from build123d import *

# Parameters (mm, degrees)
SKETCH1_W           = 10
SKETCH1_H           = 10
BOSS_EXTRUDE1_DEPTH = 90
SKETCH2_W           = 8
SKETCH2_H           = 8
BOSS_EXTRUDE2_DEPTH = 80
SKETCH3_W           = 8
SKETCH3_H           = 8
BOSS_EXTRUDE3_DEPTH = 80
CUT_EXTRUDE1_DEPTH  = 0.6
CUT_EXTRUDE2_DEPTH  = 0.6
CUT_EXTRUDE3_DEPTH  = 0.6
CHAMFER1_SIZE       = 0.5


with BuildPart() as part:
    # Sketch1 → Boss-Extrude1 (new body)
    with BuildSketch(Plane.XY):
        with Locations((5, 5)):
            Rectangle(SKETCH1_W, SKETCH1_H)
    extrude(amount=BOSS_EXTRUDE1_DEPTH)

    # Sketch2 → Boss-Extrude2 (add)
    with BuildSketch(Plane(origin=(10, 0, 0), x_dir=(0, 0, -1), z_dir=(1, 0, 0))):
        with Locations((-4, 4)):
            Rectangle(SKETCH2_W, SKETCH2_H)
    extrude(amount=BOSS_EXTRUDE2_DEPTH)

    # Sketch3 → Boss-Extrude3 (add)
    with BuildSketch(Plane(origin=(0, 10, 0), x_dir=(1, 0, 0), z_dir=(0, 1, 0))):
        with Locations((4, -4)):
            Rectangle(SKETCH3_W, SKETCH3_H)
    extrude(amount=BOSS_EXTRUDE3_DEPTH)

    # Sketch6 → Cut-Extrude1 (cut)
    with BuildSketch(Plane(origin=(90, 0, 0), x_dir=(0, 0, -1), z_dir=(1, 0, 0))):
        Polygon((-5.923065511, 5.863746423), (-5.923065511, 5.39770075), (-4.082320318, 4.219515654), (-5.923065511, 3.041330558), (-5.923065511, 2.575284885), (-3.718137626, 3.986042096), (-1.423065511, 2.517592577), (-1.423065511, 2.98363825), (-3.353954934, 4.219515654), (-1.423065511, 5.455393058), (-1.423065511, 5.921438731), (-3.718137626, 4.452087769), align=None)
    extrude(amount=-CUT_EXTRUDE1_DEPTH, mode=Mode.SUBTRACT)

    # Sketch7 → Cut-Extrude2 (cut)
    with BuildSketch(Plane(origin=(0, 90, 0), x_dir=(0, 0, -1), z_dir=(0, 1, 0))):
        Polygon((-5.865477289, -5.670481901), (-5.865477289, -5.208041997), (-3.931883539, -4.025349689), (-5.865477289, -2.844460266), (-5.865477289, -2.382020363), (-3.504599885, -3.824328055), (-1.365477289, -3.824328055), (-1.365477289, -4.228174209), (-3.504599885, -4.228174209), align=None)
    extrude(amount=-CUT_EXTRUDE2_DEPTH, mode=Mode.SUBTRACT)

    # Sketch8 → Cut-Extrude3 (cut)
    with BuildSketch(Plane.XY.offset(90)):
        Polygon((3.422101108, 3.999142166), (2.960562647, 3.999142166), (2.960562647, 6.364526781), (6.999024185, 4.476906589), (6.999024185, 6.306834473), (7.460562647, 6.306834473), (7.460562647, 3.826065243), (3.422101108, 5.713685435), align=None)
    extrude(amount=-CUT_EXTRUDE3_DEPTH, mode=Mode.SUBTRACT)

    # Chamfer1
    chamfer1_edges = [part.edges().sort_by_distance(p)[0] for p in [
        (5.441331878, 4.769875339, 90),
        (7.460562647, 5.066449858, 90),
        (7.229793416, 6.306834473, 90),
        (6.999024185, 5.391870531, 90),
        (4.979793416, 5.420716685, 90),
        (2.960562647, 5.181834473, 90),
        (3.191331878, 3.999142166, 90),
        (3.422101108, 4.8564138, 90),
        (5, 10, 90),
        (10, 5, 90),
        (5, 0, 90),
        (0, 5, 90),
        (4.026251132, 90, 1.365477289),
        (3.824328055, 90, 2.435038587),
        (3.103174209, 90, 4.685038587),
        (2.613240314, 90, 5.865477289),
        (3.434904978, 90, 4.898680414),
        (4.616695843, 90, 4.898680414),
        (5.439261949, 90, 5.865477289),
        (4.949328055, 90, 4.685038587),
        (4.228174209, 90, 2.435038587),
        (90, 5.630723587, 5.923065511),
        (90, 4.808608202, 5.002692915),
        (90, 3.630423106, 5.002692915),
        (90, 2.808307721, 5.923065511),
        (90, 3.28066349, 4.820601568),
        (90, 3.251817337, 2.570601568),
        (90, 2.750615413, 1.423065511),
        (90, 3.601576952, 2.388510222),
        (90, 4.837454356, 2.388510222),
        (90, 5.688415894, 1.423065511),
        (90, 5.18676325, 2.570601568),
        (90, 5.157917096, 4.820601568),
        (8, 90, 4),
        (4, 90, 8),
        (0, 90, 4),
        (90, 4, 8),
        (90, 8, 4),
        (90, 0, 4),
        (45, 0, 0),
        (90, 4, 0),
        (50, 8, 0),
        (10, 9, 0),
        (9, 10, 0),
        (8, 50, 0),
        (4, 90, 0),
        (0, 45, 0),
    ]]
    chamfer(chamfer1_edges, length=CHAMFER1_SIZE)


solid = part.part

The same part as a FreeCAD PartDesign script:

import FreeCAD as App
import Part
import Sketcher


def edges_at(feature, points):
    """Names of the edges that pass closest to the given points."""
    edges = feature.Shape.Edges
    near = lambda p: min(range(len(edges)), key=lambda i: edges[i].distToShape(Part.Vertex(*p))[0])
    return sorted({f"Edge{near(p) + 1}" for p in points})

doc = App.newDocument("Part")
body = doc.addObject("PartDesign::Body", "Body")

# Sketch on XY plane
sketch1 = body.newObject("Sketcher::SketchObject", "Sketch")
sketch1.AttachmentSupport = (doc.getObject("XY_Plane"), [""])
sketch1.MapMode = "FlatFace"
sketch1.addGeometry([
    Part.LineSegment(App.Vector(0, 10, 0), App.Vector(0, 0, 0)),
    Part.LineSegment(App.Vector(0, 0, 0), App.Vector(10, 0, 0)),
    Part.LineSegment(App.Vector(10, 0, 0), App.Vector(10, 10, 0)),
    Part.LineSegment(App.Vector(10, 10, 0), App.Vector(0, 10, 0)),
], False)
sketch1.addConstraint([
    Sketcher.Constraint("Coincident", 0, 2, 1, 1),
    Sketcher.Constraint("Coincident", 1, 2, 2, 1),
    Sketcher.Constraint("Coincident", 2, 2, 3, 1),
    Sketcher.Constraint("Coincident", 3, 2, 0, 1),
    Sketcher.Constraint("Vertical", 0),
    Sketcher.Constraint("Horizontal", 1),
    Sketcher.Constraint("Vertical", 2),
    Sketcher.Constraint("Horizontal", 3),
    Sketcher.Constraint("Coincident", 0, 2, -1, 1),
    Sketcher.Constraint("Equal", 3, 0),
    Sketcher.Constraint("DistanceX", 1, 1, 1, 2, 10.0),
])
pad1 = body.newObject("PartDesign::Pad", "Pad")
pad1.Profile = sketch1
pad1.Length = 90

# Sketch on YZ plane
sketch2 = body.newObject("Sketcher::SketchObject", "Sketch001")
sketch2.AttachmentSupport = (doc.getObject("YZ_Plane"), [""])
sketch2.MapMode = "FlatFace"
sketch2.AttachmentOffset = App.Placement(App.Vector(0, 0, 10), App.Rotation())
sketch2.addGeometry([
    Part.LineSegment(App.Vector(8, 8, 0), App.Vector(0, 8, 0)),
    Part.LineSegment(App.Vector(0, 8, 0), App.Vector(0, 0, 0)),
    Part.LineSegment(App.Vector(0, 0, 0), App.Vector(8, 0, 0)),
    Part.LineSegment(App.Vector(8, 0, 0), App.Vector(8, 8, 0)),
], False)
sketch2.addConstraint([
    Sketcher.Constraint("Coincident", 0, 2, 1, 1),
    Sketcher.Constraint("Coincident", 1, 2, 2, 1),
    Sketcher.Constraint("Coincident", 2, 2, 3, 1),
    Sketcher.Constraint("Coincident", 3, 2, 0, 1),
    Sketcher.Constraint("Horizontal", 0),
    Sketcher.Constraint("Vertical", 1),
    Sketcher.Constraint("Horizontal", 2),
    Sketcher.Constraint("Vertical", 3),
    Sketcher.Constraint("Coincident", 1, 2, -1, 1),
    Sketcher.Constraint("Equal", 2, 1),
    Sketcher.Constraint("DistanceX", 0, 2, 0, 1, 8.0),
])
pad2 = body.newObject("PartDesign::Pad", "Pad001")
pad2.Profile = sketch2
pad2.Length = 80

# Sketch on XZ plane
sketch3 = body.newObject("Sketcher::SketchObject", "Sketch002")
sketch3.AttachmentSupport = (doc.getObject("XZ_Plane"), [""])
sketch3.MapMode = "FlatFace"
sketch3.AttachmentOffset = App.Placement(App.Vector(0, 0, -10), App.Rotation())
sketch3.addGeometry([
    Part.LineSegment(App.Vector(0, 0, 0), App.Vector(0, 8, 0)),
    Part.LineSegment(App.Vector(0, 8, 0), App.Vector(8, 8, 0)),
    Part.LineSegment(App.Vector(8, 8, 0), App.Vector(8, 0, 0)),
    Part.LineSegment(App.Vector(8, 0, 0), App.Vector(0, 0, 0)),
], False)
sketch3.addConstraint([
    Sketcher.Constraint("Coincident", 0, 2, 1, 1),
    Sketcher.Constraint("Coincident", 1, 2, 2, 1),
    Sketcher.Constraint("Coincident", 2, 2, 3, 1),
    Sketcher.Constraint("Coincident", 3, 2, 0, 1),
    Sketcher.Constraint("Vertical", 0),
    Sketcher.Constraint("Horizontal", 1),
    Sketcher.Constraint("Vertical", 2),
    Sketcher.Constraint("Horizontal", 3),
    Sketcher.Constraint("Coincident", 3, 2, -1, 1),
    Sketcher.Constraint("Equal", 3, 0),
    Sketcher.Constraint("DistanceX", 1, 1, 1, 2, 8.0),
])
pad3 = body.newObject("PartDesign::Pad", "Pad002")
pad3.Profile = sketch3
pad3.Length = 80
pad3.Reversed = True

# Sketch on YZ plane
sketch4 = body.newObject("Sketcher::SketchObject", "Sketch003")
sketch4.AttachmentSupport = (doc.getObject("YZ_Plane"), [""])
sketch4.MapMode = "FlatFace"
sketch4.AttachmentOffset = App.Placement(App.Vector(0, 0, 90), App.Rotation())
sketch4.addGeometry([
    Part.LineSegment(App.Vector(5.86, 5.92, 0), App.Vector(5.4, 5.92, 0)),  # 0
    Part.LineSegment(App.Vector(5.4, 5.92, 0), App.Vector(4.22, 4.08, 0)),  # 1
    Part.LineSegment(App.Vector(4.22, 4.08, 0), App.Vector(3.04, 5.92, 0)),  # 2
    Part.LineSegment(App.Vector(3.04, 5.92, 0), App.Vector(2.58, 5.92, 0)),  # 3
    Part.LineSegment(App.Vector(2.58, 5.92, 0), App.Vector(3.99, 3.72, 0)),  # 4
    Part.LineSegment(App.Vector(3.99, 3.72, 0), App.Vector(2.52, 1.42, 0)),  # 5
    Part.LineSegment(App.Vector(2.52, 1.42, 0), App.Vector(2.98, 1.42, 0)),  # 6
    Part.LineSegment(App.Vector(2.98, 1.42, 0), App.Vector(4.22, 3.35, 0)),  # 7
    Part.LineSegment(App.Vector(4.22, 3.35, 0), App.Vector(5.46, 1.42, 0)),  # 8
    Part.LineSegment(App.Vector(5.46, 1.42, 0), App.Vector(5.92, 1.42, 0)),  # 9
    Part.LineSegment(App.Vector(5.92, 1.42, 0), App.Vector(4.45, 3.72, 0)),  # 10
    Part.LineSegment(App.Vector(4.45, 3.72, 0), App.Vector(5.86, 5.92, 0)),  # 11
], False)
sketch4.addConstraint([
    Sketcher.Constraint("Coincident", 0, 2, 1, 1),
    Sketcher.Constraint("Coincident", 1, 2, 2, 1),
    Sketcher.Constraint("Coincident", 2, 2, 3, 1),
    Sketcher.Constraint("Coincident", 3, 2, 4, 1),
    Sketcher.Constraint("Coincident", 4, 2, 5, 1),
    Sketcher.Constraint("Coincident", 5, 2, 6, 1),
    Sketcher.Constraint("Coincident", 6, 2, 7, 1),
    Sketcher.Constraint("Coincident", 7, 2, 8, 1),
    Sketcher.Constraint("Coincident", 8, 2, 9, 1),
    Sketcher.Constraint("Coincident", 9, 2, 10, 1),
    Sketcher.Constraint("Coincident", 10, 2, 11, 1),
    Sketcher.Constraint("Coincident", 11, 2, 0, 1),
    Sketcher.Constraint("Horizontal", 0),
    Sketcher.Constraint("Horizontal", 3),
    Sketcher.Constraint("Horizontal", 6),
    Sketcher.Constraint("Horizontal", 9),
    Sketcher.Constraint("Parallel", 1, 7),
    Sketcher.Constraint("Parallel", 2, 8),
    Sketcher.Constraint("Horizontal", 0, 2, 2, 2),
    Sketcher.Constraint("Horizontal", 6, 2, 8, 2),
    Sketcher.Constraint("Horizontal", 4, 2, 10, 2),
    Sketcher.Constraint("Vertical", 1, 2, 7, 2),
    Sketcher.Constraint("Equal", 0, 3),
    Sketcher.Constraint("Equal", 3, 6),
    Sketcher.Constraint("Equal", 6, 9),
    Sketcher.Constraint("Equal", 1, 2),
    Sketcher.Constraint("DistanceY", 5, 2, 3, 2, 4.5),
    Sketcher.Constraint("DistanceX", -1, 1, 0, 2, 5.397701),
    Sketcher.Constraint("DistanceX", 5, 2, 8, 2, 2.9378),
    Sketcher.Constraint("Distance", 4, 2.617622),
    Sketcher.Constraint("DistanceX", 0, 2, 0, 1, 0.466046),
    Sketcher.Constraint("DistanceY", -1, 1, 1, 2, 4.08232),
    Sketcher.Constraint("DistanceX", -1, 1, 2, 2, 3.041331),
    Sketcher.Constraint("DistanceX", 2, 2, 4, 2, 0.944712),
    Sketcher.Constraint("DistanceY", 6, 2, 7, 2, 1.930889),
    Sketcher.Constraint("DistanceX", 10, 2, 11, 2, 1.411659),
])
pocket1 = body.newObject("PartDesign::Pocket", "Pocket")
pocket1.Profile = sketch4
pocket1.Length = 0.6

# Sketch on XZ plane
sketch5 = body.newObject("Sketcher::SketchObject", "Sketch004")
sketch5.AttachmentSupport = (doc.getObject("XZ_Plane"), [""])
sketch5.MapMode = "FlatFace"
sketch5.AttachmentOffset = App.Placement(App.Vector(0, 0, -90), App.Rotation())
sketch5.addGeometry([
    Part.LineSegment(App.Vector(5.21, 5.87, 0), App.Vector(5.67, 5.87, 0)),  # 0
    Part.LineSegment(App.Vector(5.67, 5.87, 0), App.Vector(4.23, 3.5, 0)),  # 1
    Part.LineSegment(App.Vector(4.23, 3.5, 0), App.Vector(4.23, 1.37, 0)),  # 2
    Part.LineSegment(App.Vector(4.23, 1.37, 0), App.Vector(3.82, 1.37, 0)),  # 3
    Part.LineSegment(App.Vector(3.82, 1.37, 0), App.Vector(3.82, 3.5, 0)),  # 4
    Part.LineSegment(App.Vector(3.82, 3.5, 0), App.Vector(2.38, 5.87, 0)),  # 5
    Part.LineSegment(App.Vector(2.38, 5.87, 0), App.Vector(2.84, 5.87, 0)),  # 6
    Part.LineSegment(App.Vector(2.84, 5.87, 0), App.Vector(4.03, 3.93, 0)),  # 7
    Part.LineSegment(App.Vector(4.03, 3.93, 0), App.Vector(5.21, 5.87, 0)),  # 8
], False)
sketch5.addConstraint([
    Sketcher.Constraint("Coincident", 0, 2, 1, 1),
    Sketcher.Constraint("Coincident", 1, 2, 2, 1),
    Sketcher.Constraint("Coincident", 2, 2, 3, 1),
    Sketcher.Constraint("Coincident", 3, 2, 4, 1),
    Sketcher.Constraint("Coincident", 4, 2, 5, 1),
    Sketcher.Constraint("Coincident", 5, 2, 6, 1),
    Sketcher.Constraint("Coincident", 6, 2, 7, 1),
    Sketcher.Constraint("Coincident", 7, 2, 8, 1),
    Sketcher.Constraint("Coincident", 8, 2, 0, 1),
    Sketcher.Constraint("Horizontal", 0),
    Sketcher.Constraint("Vertical", 2),
    Sketcher.Constraint("Horizontal", 3),
    Sketcher.Constraint("Vertical", 4),
    Sketcher.Constraint("Horizontal", 6),
    Sketcher.Constraint("Horizontal", 1, 2, 4, 2),
    Sketcher.Constraint("Horizontal", 0, 2, 5, 2),
    Sketcher.Constraint("Equal", 0, 6),
    Sketcher.Constraint("Equal", 1, 5),
    Sketcher.Constraint("DistanceY", 2, 2, 0, 2, 4.5),
    Sketcher.Constraint("DistanceX", 0, 1, 0, 2, 0.46244),
    Sketcher.Constraint("DistanceY", -1, 1, 1, 2, 3.5046),
    Sketcher.Constraint("DistanceX", 3, 2, 3, 1, 0.403846),
    Sketcher.Constraint("DistanceY", 2, 2, 2, 1, 2.139123),
    Sketcher.Constraint("DistanceX", -1, 1, 0, 2, 5.670482),
    Sketcher.Constraint("DistanceX", -1, 1, 3, 2, 3.824328),
    Sketcher.Constraint("DistanceX", -1, 1, 7, 2, 4.02535),
    Sketcher.Constraint("Distance", 7, 2.265675),
])
pocket2 = body.newObject("PartDesign::Pocket", "Pocket001")
pocket2.Profile = sketch5
pocket2.Length = 0.6
pocket2.Reversed = True

# Sketch on XY plane
sketch6 = body.newObject("Sketcher::SketchObject", "Sketch005")
sketch6.AttachmentSupport = (doc.getObject("XY_Plane"), [""])
sketch6.MapMode = "FlatFace"
sketch6.AttachmentOffset = App.Placement(App.Vector(0, 0, 90), App.Rotation())
sketch6.addGeometry([
    Part.LineSegment(App.Vector(2.96, 4, 0), App.Vector(3.42, 4, 0)),  # 0
    Part.LineSegment(App.Vector(3.42, 4, 0), App.Vector(3.42, 5.71, 0)),  # 1
    Part.LineSegment(App.Vector(3.42, 5.71, 0), App.Vector(7.46, 3.83, 0)),  # 2
    Part.LineSegment(App.Vector(7.46, 3.83, 0), App.Vector(7.46, 6.31, 0)),  # 3
    Part.LineSegment(App.Vector(7.46, 6.31, 0), App.Vector(7, 6.31, 0)),  # 4
    Part.LineSegment(App.Vector(7, 6.31, 0), App.Vector(7, 4.48, 0)),  # 5
    Part.LineSegment(App.Vector(7, 4.48, 0), App.Vector(2.96, 6.36, 0)),  # 6
    Part.LineSegment(App.Vector(2.96, 6.36, 0), App.Vector(2.96, 4, 0)),  # 7
], False)
sketch6.addConstraint([
    Sketcher.Constraint("Coincident", 0, 2, 1, 1),
    Sketcher.Constraint("Coincident", 1, 2, 2, 1),
    Sketcher.Constraint("Coincident", 2, 2, 3, 1),
    Sketcher.Constraint("Coincident", 3, 2, 4, 1),
    Sketcher.Constraint("Coincident", 4, 2, 5, 1),
    Sketcher.Constraint("Coincident", 5, 2, 6, 1),
    Sketcher.Constraint("Coincident", 6, 2, 7, 1),
    Sketcher.Constraint("Coincident", 7, 2, 0, 1),
    Sketcher.Constraint("Horizontal", 0),
    Sketcher.Constraint("Vertical", 1),
    Sketcher.Constraint("Vertical", 3),
    Sketcher.Constraint("Horizontal", 4),
    Sketcher.Constraint("Vertical", 5),
    Sketcher.Constraint("Vertical", 7),
    Sketcher.Constraint("Parallel", 2, 6),
    Sketcher.Constraint("Equal", 0, 4),
    Sketcher.Constraint("DistanceX", 6, 2, 3, 2, 4.5),
    Sketcher.Constraint("DistanceX", 0, 1, 0, 2, 0.461538),
    Sketcher.Constraint("DistanceY", 3, 1, 3, 2, 2.480769),
    Sketcher.Constraint("DistanceX", -1, 1, 0, 2, 3.422101),
    Sketcher.Constraint("DistanceY", 1, 1, 1, 2, 1.714543),
    Sketcher.Constraint("DistanceY", 5, 2, 5, 1, 1.829928),
    Sketcher.Constraint("DistanceY", 2, 2, 1, 2, 1.88762),
    Sketcher.Constraint("DistanceY", -1, 1, 0, 2, 3.999142),
])
pocket3 = body.newObject("PartDesign::Pocket", "Pocket002")
pocket3.Profile = sketch6
pocket3.Length = 0.6
doc.recompute()

chamfer = body.newObject("PartDesign::Chamfer", "Chamfer")
chamfer.Base = (pocket3, edges_at(pocket3, [
    (5.441, 4.77, 90),
    (7.461, 5.066, 90),
    (7.23, 6.307, 90),
    (6.999, 5.392, 90),
    (4.98, 5.421, 90),
    (2.961, 5.182, 90),
    (3.191, 3.999, 90),
    (3.422, 4.856, 90),
    (5, 10, 90),
    (10, 5, 90),
    (5, 0, 90),
    (0, 5, 90),
    (4.026, 90, 1.365),
    (3.824, 90, 2.435),
    (3.103, 90, 4.685),
    (2.613, 90, 5.865),
    (3.435, 90, 4.899),
    (4.617, 90, 4.899),
    (5.439, 90, 5.865),
    (4.949, 90, 4.685),
    (4.228, 90, 2.435),
    (90, 5.631, 5.923),
    (90, 4.809, 5.003),
    (90, 3.63, 5.003),
    (90, 2.808, 5.923),
    (90, 3.281, 4.821),
    (90, 3.252, 2.571),
    (90, 2.751, 1.423),
    (90, 3.602, 2.389),
    (90, 4.837, 2.389),
    (90, 5.688, 1.423),
    (90, 5.187, 2.571),
    (90, 5.158, 4.821),
    (8, 90, 4),
    (4, 90, 8),
    (0, 90, 4),
    (90, 4, 8),
    (90, 8, 4),
    (90, 0, 4),
    (45, 0, 0),
    (90, 4, 0),
    (50, 8, 0),
    (10, 9, 0),
    (9, 10, 0),
    (8, 50, 0),
    (4, 90, 0),
    (0, 45, 0),
]))
chamfer.Size = 0.5

doc.recompute()
